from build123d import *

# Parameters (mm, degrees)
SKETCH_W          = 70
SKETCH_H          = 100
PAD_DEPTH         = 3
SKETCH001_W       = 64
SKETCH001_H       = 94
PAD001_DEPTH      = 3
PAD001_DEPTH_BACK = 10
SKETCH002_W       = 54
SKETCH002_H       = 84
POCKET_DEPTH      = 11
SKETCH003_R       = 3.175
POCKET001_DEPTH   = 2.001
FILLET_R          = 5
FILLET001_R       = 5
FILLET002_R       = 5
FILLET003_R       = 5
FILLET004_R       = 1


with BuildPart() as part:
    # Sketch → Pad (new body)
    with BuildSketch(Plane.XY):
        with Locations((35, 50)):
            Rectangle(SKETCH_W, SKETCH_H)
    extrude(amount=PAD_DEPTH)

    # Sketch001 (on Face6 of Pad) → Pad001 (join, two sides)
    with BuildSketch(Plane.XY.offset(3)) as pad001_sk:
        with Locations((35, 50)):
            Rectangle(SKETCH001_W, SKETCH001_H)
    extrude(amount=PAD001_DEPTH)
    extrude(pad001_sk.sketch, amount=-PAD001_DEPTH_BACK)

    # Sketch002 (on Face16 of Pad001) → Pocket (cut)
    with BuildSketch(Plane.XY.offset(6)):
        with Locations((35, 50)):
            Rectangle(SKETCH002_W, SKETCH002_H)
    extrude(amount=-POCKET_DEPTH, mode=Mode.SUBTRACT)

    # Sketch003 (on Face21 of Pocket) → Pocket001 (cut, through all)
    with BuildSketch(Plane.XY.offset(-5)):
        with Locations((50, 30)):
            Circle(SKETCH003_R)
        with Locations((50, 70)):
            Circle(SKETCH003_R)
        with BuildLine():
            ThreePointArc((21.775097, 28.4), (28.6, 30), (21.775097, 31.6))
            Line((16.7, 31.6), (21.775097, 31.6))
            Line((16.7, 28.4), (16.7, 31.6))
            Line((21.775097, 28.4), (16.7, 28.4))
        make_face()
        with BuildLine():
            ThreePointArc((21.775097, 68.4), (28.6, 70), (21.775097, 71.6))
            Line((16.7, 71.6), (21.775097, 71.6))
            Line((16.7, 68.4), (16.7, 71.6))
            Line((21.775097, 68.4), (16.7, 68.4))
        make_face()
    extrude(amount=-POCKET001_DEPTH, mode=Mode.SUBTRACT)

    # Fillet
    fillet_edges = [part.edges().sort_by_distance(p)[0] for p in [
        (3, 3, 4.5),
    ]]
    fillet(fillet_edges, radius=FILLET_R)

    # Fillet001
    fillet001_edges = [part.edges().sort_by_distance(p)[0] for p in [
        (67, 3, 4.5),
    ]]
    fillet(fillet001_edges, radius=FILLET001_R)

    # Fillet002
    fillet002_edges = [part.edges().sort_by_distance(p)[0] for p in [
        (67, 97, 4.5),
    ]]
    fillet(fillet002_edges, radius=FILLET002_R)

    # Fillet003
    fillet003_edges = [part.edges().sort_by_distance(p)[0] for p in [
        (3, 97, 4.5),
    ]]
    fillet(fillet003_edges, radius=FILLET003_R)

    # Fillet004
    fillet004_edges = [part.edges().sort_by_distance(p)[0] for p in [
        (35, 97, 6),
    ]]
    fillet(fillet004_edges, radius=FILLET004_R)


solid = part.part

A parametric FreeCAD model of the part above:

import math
import FreeCAD as App
import Part
import Sketcher


def edges_at(feature, points):
    """Names of the edges that pass closest to the given points."""
    edges = feature.Shape.Edges
    near = lambda p: min(range(len(edges)), key=lambda i: edges[i].distToShape(Part.Vertex(*p))[0])
    return sorted({f"Edge{near(p) + 1}" for p in points})


def add_polygon(sketch, points):
    """Adds a closed chain of lines whose ends are joined by coincident constraints."""
    first, n = sketch.GeometryCount, len(points)
    for a, b in zip(points, points[1:] + points[:1]):
        sketch.addGeometry(Part.LineSegment(App.Vector(*a, 0), App.Vector(*b, 0)), False)
    for i in range(n):
        sketch.addConstraint(Sketcher.Constraint("Coincident", first + i, 2, first + (i + 1) % n, 1))

doc = App.newDocument("Part")
body = doc.addObject("PartDesign::Body", "Body")

# Sketch on XY plane
sketch1 = body.newObject("Sketcher::SketchObject", "Sketch")
sketch1.AttachmentSupport = (doc.getObject("XY_Plane"), [""])
sketch1.MapMode = "FlatFace"
add_polygon(sketch1, [(0, 100), (0, 0), (70, 0), (70, 100)])  # lines 0-3
sketch1.addConstraint([
    Sketcher.Constraint("Vertical", 0),
    Sketcher.Constraint("Horizontal", 1),
    Sketcher.Constraint("Vertical", 2),
    Sketcher.Constraint("Horizontal", 3),
    Sketcher.Constraint("Coincident", 0, 2, -1, 1),
    Sketcher.Constraint("DistanceX", 1, 1, 1, 2, 70.0),
    Sketcher.Constraint("DistanceY", 0, 2, 0, 1, 100.0),
])
pad1 = body.newObject("PartDesign::Pad", "Pad")
pad1.Profile = sketch1
pad1.Length = 3

# Sketch on XY plane
sketch2 = body.newObject("Sketcher::SketchObject", "Sketch001")
sketch2.AttachmentSupport = (doc.getObject("XY_Plane"), [""])
sketch2.MapMode = "FlatFace"
sketch2.AttachmentOffset = App.Placement(App.Vector(0, 0, 3), App.Rotation())
add_polygon(sketch2, [(3, 97), (3, 3), (67, 3), (67, 97)])  # lines 0-3
sketch2.addConstraint([
    Sketcher.Constraint("Vertical", 0),
    Sketcher.Constraint("Horizontal", 1),
    Sketcher.Constraint("Vertical", 2),
    Sketcher.Constraint("Horizontal", 3),
    Sketcher.Constraint("DistanceX", 1, 1, 1, 2, 64.0),
    Sketcher.Constraint("DistanceY", 0, 2, 0, 1, 94.0),
    Sketcher.Constraint("DistanceX", -1, 1, 0, 2, 3.0),
    Sketcher.Constraint("DistanceY", -1, 1, 0, 2, 3.0),
])
pad2 = body.newObject("PartDesign::Pad", "Pad001")
pad2.Profile = sketch2
pad2.Type = "TwoLengths"
pad2.Length = 3
pad2.Length2 = 10

# Sketch on XY plane
sketch3 = body.newObject("Sketcher::SketchObject", "Sketch002")
sketch3.AttachmentSupport = (doc.getObject("XY_Plane"), [""])
sketch3.MapMode = "FlatFace"
sketch3.AttachmentOffset = App.Placement(App.Vector(0, 0, 6), App.Rotation())
add_polygon(sketch3, [(8, 92), (8, 8), (62, 8), (62, 92)])  # lines 0-3
sketch3.addConstraint([
    Sketcher.Constraint("Vertical", 0),
    Sketcher.Constraint("Horizontal", 1),
    Sketcher.Constraint("Vertical", 2),
    Sketcher.Constraint("Horizontal", 3),
    Sketcher.Constraint("DistanceX", 1, 1, 1, 2, 54.0),
    Sketcher.Constraint("DistanceY", 0, 2, 0, 1, 84.0),
    Sketcher.Constraint("DistanceX", -1, 1, 0, 2, 8.0),
    Sketcher.Constraint("DistanceY", -1, 1, 0, 2, 8.0),
])
pocket1 = body.newObject("PartDesign::Pocket", "Pocket")
pocket1.Profile = sketch3
pocket1.Length = 11

# Sketch on XY plane
sketch4 = body.newObject("Sketcher::SketchObject", "Sketch003")
sketch4.AttachmentSupport = (doc.getObject("XY_Plane"), [""])
sketch4.MapMode = "FlatFace"
sketch4.AttachmentOffset = App.Placement(App.Vector(0, 0, -5), App.Rotation())
sketch4.addGeometry([
    Part.Circle(App.Vector(50, 30, 0), App.Vector(0, 0, 1), 3.2),  # 0
    Part.Circle(App.Vector(50, 70, 0), App.Vector(0, 0, 1), 3.2),  # 1
    Part.ArcOfCircle(Part.Circle(App.Vector(25, 30, 0), App.Vector(0, 0, 1), 3.6), math.radians(-154), math.radians(154)),  # 2
    Part.LineSegment(App.Vector(21.8, 31.6, 0), App.Vector(16.7, 31.6, 0)),  # 3
    Part.LineSegment(App.Vector(16.7, 31.6, 0), App.Vector(16.7, 28.4, 0)),  # 4
    Part.LineSegment(App.Vector(16.7, 28.4, 0), App.Vector(21.8, 28.4, 0)),  # 5
    Part.ArcOfCircle(Part.Circle(App.Vector(25, 70, 0), App.Vector(0, 0, 1), 3.6), math.radians(-154), math.radians(154)),  # 6
    Part.LineSegment(App.Vector(21.8, 71.6, 0), App.Vector(16.7, 71.6, 0)),  # 7
    Part.LineSegment(App.Vector(16.7, 71.6, 0), App.Vector(16.7, 68.4, 0)),  # 8
    Part.LineSegment(App.Vector(16.7, 68.4, 0), App.Vector(21.8, 68.4, 0)),  # 9
], False)
sketch4.addConstraint([
    Sketcher.Constraint("Coincident", 2, 2, 3, 1),
    Sketcher.Constraint("Coincident", 3, 2, 4, 1),
    Sketcher.Constraint("Coincident", 4, 2, 5, 1),
    Sketcher.Constraint("Coincident", 5, 2, 2, 1),
    Sketcher.Constraint("Coincident", 6, 2, 7, 1),
    Sketcher.Constraint("Coincident", 7, 2, 8, 1),
    Sketcher.Constraint("Coincident", 8, 2, 9, 1),
    Sketcher.Constraint("Coincident", 9, 2, 6, 1),
    Sketcher.Constraint("Horizontal", 3),
    Sketcher.Constraint("Vertical", 4),
    Sketcher.Constraint("Horizontal", 5),
    Sketcher.Constraint("Horizontal", 7),
    Sketcher.Constraint("Vertical", 8),
    Sketcher.Constraint("Horizontal", 9),
    Sketcher.Constraint("Equal", 0, 1),
    Sketcher.Constraint("Equal", 2, 6),
    Sketcher.Constraint("Horizontal", 0, 3, 2, 3),
    Sketcher.Constraint("Horizontal", 1, 3, 6, 3),
    Sketcher.Constraint("Vertical", 0, 3, 1, 3),
    Sketcher.Constraint("Vertical", 2, 3, 6, 3),
    Sketcher.Constraint("Vertical", 2, 2, 5, 2),
    Sketcher.Constraint("Vertical", 5, 2, 6, 2),
    Sketcher.Constraint("Vertical", 4, 2, 7, 2),
    Sketcher.Constraint("Vertical", 6, 2, 9, 2),
    Sketcher.Constraint("Radius", 2, 3.6),
    Sketcher.Constraint("Diameter", 0, 6.35),
    Sketcher.Constraint("DistanceY", 4, 2, 4, 1, 3.2),
    Sketcher.Constraint("DistanceX", -1, 1, 0, 3, 50.0),
    Sketcher.Constraint("DistanceY", -1, 1, 0, 3, 30.0),
    Sketcher.Constraint("DistanceY", -1, 1, 1, 3, 70.0),
    Sketcher.Constraint("DistanceX", -1, 1, 2, 3, 25.0),
    Sketcher.Constraint("DistanceX", -1, 1, 3, 2, 16.7),
])
pocket2 = body.newObject("PartDesign::Pocket", "Pocket001")
pocket2.Profile = sketch4
pocket2.Type = "ThroughAll"
doc.recompute()

fillet = body.newObject("PartDesign::Fillet", "Fillet")
fillet.Base = (pocket2, edges_at(pocket2, [(3, 3, 4.5)]))
fillet.Radius = 5
doc.recompute()

fillet2 = body.newObject("PartDesign::Fillet", "Fillet001")
fillet2.Base = (fillet, edges_at(fillet, [(67, 3, 4.5)]))
fillet2.Radius = 5
doc.recompute()

fillet3 = body.newObject("PartDesign::Fillet", "Fillet002")
fillet3.Base = (fillet2, edges_at(fillet2, [(67, 97, 4.5)]))
fillet3.Radius = 5
doc.recompute()

fillet4 = body.newObject("PartDesign::Fillet", "Fillet003")
fillet4.Base = (fillet3, edges_at(fillet3, [(3, 97, 4.5)]))
fillet4.Radius = 5
doc.recompute()

fillet5 = body.newObject("PartDesign::Fillet", "Fillet004")
fillet5.Base = (fillet4, edges_at(fillet4, [(35, 97, 6)]))
fillet5.Radius = 1

doc.recompute()
